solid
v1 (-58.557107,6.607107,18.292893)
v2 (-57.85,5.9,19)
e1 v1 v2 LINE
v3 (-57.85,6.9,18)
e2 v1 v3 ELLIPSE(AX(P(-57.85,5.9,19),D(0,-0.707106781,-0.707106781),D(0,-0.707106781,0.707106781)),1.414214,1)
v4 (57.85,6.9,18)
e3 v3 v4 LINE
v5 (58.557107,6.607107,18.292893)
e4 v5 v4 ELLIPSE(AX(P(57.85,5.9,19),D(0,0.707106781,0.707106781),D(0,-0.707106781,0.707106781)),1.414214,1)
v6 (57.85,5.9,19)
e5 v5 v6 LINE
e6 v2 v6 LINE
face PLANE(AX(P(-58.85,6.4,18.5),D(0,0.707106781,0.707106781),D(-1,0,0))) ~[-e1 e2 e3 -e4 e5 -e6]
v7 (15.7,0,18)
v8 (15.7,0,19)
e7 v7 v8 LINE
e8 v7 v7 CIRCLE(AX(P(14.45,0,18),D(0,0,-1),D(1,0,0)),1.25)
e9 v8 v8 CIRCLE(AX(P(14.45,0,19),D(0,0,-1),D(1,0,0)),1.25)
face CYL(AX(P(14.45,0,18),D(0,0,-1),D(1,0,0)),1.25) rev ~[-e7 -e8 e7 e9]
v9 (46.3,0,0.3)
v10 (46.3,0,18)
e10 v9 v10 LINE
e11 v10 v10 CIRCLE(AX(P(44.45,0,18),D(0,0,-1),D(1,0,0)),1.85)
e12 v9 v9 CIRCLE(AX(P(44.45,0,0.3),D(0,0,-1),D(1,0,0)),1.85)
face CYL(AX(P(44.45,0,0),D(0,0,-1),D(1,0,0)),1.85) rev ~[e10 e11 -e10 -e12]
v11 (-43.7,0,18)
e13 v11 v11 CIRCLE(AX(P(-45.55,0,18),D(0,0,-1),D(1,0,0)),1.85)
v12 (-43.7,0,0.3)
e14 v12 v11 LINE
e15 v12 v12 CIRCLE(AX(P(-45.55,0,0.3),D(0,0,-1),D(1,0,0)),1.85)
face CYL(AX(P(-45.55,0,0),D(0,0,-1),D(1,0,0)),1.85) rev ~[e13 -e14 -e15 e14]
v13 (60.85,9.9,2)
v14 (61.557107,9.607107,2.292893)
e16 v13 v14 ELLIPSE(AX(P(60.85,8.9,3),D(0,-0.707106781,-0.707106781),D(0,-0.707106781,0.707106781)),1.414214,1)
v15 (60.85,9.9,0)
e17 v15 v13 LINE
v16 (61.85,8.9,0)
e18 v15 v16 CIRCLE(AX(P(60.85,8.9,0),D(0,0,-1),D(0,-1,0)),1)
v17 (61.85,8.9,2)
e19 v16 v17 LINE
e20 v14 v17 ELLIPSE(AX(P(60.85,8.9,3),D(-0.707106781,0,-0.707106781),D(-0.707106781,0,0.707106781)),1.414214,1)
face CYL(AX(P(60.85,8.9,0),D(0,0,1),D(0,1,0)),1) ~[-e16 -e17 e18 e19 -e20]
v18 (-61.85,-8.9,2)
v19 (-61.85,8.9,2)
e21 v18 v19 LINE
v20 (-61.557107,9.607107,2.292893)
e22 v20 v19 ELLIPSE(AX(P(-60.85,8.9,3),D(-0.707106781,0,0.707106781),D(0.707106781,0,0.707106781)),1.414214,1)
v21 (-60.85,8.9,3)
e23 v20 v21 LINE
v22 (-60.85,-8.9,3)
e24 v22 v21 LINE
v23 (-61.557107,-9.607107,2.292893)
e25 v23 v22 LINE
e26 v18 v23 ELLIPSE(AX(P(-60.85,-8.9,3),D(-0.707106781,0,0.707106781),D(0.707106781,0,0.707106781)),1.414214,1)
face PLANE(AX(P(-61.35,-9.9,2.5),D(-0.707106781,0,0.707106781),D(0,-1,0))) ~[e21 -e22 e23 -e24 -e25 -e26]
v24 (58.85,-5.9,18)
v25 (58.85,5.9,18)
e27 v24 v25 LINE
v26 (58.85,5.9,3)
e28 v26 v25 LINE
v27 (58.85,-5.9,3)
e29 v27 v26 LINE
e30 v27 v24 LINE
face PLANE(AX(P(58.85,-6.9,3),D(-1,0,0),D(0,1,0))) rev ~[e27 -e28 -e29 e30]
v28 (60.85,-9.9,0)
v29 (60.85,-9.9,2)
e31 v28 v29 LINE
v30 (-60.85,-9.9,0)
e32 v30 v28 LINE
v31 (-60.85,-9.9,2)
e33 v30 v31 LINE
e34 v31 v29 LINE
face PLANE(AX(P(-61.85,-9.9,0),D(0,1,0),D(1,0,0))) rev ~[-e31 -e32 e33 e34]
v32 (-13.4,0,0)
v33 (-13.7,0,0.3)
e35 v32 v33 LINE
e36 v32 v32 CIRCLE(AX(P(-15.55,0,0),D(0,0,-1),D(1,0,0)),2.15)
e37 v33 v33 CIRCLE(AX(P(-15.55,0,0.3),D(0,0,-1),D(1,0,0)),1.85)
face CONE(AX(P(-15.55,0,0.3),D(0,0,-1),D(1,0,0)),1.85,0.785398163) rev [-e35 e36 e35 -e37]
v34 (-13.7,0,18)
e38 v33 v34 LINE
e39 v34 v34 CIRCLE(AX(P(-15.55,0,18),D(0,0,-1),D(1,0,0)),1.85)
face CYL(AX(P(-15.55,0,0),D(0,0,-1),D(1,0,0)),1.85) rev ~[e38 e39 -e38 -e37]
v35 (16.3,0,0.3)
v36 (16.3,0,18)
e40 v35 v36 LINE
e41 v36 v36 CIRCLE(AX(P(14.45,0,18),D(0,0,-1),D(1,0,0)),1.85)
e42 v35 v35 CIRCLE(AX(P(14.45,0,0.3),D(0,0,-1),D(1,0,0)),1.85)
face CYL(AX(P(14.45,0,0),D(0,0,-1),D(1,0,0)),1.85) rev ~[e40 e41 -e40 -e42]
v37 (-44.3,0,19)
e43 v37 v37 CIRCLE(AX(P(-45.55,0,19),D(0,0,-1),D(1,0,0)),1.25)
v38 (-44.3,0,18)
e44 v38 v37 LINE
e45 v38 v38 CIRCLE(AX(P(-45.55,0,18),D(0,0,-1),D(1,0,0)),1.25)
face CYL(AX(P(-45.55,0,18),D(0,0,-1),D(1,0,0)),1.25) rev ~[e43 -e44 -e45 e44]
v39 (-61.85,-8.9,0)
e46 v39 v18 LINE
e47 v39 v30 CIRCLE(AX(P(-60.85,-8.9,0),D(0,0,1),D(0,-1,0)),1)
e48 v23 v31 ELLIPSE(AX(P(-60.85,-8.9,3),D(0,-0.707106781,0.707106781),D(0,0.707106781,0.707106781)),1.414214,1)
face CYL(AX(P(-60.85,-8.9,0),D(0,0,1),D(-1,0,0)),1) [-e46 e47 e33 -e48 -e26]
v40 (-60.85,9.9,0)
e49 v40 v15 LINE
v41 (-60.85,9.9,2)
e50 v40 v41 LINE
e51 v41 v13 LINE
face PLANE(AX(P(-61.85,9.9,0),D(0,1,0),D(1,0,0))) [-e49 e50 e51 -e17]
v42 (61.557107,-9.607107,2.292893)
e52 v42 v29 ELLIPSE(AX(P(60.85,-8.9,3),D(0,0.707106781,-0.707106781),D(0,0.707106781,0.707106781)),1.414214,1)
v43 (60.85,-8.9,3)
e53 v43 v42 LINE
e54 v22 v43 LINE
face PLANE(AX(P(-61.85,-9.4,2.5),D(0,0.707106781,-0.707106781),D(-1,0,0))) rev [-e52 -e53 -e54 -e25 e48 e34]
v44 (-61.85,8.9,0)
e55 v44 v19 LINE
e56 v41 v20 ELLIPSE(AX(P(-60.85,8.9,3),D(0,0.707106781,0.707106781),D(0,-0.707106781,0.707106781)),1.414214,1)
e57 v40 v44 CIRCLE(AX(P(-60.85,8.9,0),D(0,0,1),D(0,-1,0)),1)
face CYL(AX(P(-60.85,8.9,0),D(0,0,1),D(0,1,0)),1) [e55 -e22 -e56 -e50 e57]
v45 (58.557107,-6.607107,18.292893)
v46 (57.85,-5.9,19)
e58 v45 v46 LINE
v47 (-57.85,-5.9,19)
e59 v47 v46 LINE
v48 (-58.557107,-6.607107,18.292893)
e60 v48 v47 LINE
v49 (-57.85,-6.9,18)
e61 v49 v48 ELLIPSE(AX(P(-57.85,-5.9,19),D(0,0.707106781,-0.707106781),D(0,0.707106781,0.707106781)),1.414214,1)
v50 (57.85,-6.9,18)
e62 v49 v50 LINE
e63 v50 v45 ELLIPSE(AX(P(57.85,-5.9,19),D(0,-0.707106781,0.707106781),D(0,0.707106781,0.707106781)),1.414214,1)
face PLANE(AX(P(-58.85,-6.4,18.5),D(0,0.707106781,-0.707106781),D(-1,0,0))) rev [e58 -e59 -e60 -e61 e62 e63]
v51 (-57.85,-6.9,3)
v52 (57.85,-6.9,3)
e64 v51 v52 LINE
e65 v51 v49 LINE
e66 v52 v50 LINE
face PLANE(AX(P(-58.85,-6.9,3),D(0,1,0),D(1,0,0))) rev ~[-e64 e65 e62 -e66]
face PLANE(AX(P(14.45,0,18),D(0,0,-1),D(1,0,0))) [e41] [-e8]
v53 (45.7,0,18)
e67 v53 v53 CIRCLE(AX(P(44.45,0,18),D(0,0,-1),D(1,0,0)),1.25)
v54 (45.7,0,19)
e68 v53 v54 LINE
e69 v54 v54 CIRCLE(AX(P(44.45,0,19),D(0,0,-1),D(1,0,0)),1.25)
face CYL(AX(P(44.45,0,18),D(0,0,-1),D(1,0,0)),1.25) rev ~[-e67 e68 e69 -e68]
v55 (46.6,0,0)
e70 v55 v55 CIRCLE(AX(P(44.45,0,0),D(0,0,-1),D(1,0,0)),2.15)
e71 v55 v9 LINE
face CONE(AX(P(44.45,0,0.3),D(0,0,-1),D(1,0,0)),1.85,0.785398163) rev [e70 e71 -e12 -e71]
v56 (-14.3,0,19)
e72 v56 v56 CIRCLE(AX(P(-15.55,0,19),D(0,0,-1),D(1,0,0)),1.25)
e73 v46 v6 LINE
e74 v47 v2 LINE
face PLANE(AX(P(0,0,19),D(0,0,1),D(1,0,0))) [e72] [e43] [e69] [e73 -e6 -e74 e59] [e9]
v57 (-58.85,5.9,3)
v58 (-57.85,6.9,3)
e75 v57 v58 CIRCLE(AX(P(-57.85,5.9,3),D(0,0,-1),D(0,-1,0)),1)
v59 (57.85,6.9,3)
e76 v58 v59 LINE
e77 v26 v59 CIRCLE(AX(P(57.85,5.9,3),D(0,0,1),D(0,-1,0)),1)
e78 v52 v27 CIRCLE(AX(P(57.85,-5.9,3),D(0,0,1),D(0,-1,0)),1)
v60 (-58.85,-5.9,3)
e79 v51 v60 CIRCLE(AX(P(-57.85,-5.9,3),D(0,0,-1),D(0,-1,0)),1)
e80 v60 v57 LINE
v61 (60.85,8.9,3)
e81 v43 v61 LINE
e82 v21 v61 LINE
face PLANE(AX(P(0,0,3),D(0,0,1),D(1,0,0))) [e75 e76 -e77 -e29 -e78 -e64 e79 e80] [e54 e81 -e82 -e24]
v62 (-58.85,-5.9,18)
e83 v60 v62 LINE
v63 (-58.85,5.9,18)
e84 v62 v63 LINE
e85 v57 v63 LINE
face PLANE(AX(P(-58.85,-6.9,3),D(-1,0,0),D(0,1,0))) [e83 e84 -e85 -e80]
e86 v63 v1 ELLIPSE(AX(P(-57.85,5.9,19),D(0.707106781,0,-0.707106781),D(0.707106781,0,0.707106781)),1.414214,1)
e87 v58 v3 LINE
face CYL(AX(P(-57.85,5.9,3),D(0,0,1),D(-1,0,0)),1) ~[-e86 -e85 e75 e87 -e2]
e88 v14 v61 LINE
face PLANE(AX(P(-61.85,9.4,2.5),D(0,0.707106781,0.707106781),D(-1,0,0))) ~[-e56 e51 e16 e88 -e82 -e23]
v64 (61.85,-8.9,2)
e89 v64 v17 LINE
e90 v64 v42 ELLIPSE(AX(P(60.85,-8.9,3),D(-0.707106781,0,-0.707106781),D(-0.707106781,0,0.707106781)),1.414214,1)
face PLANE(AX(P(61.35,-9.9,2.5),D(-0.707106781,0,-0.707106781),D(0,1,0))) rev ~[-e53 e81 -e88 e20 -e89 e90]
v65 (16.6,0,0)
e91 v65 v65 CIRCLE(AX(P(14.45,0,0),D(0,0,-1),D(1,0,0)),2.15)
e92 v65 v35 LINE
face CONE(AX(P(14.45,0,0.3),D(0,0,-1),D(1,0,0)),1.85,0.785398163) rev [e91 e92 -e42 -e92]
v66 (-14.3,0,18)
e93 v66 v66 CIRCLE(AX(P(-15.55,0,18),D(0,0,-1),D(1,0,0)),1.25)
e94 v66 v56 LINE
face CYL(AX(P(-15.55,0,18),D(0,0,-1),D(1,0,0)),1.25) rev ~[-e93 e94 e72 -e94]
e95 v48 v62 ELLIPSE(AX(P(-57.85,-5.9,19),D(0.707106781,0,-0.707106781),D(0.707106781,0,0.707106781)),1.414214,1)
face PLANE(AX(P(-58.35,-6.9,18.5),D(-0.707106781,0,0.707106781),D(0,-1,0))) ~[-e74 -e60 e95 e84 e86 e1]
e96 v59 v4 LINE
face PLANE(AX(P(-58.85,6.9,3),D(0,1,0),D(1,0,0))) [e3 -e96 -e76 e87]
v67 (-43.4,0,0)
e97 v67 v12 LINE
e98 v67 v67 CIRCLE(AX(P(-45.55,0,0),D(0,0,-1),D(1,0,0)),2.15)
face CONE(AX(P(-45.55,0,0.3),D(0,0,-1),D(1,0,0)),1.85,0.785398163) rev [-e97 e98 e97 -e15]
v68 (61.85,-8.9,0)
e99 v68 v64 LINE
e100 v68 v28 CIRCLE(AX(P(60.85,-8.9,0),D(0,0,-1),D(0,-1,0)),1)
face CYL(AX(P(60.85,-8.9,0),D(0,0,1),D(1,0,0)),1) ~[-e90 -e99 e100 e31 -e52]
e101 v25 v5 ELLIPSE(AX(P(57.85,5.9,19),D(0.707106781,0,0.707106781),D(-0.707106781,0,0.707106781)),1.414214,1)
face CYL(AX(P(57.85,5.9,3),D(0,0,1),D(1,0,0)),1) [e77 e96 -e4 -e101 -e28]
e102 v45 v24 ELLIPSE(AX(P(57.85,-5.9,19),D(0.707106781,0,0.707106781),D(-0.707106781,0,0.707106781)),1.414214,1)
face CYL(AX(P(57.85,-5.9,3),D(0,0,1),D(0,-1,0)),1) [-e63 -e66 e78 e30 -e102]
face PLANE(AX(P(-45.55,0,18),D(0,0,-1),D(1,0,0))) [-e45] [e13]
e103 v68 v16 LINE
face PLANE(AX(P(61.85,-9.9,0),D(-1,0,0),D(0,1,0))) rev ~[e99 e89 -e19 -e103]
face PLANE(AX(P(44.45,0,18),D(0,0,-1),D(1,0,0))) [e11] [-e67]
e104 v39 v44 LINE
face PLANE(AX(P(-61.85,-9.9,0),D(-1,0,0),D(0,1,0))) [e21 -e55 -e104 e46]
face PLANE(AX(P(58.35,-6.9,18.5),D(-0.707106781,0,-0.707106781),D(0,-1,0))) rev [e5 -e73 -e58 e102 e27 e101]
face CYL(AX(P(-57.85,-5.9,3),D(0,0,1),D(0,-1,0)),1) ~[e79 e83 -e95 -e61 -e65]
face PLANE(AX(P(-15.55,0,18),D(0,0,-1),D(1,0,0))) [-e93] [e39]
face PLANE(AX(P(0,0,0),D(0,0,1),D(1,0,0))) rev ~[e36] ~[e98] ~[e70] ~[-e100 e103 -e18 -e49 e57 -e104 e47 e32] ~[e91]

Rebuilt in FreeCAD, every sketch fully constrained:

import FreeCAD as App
import Part
import Sketcher

V = App.Vector


def edges_at(feature, points):
    """Names of the edges that pass closest to the given points."""
    edges = feature.Shape.Edges
    near = lambda p: min(range(len(edges)), key=lambda i: edges[i].distToShape(Part.Vertex(*p))[0])
    return sorted({f"Edge{near(p) + 1}" for p in points})


def add_polygon(sketch, points):
    """Adds a closed chain of lines whose ends are joined by coincident constraints."""
    first, n = sketch.GeometryCount, len(points)
    for a, b in zip(points, points[1:] + points[:1]):
        sketch.addGeometry(Part.LineSegment(App.Vector(*a, 0), App.Vector(*b, 0)), False)
    for i in range(n):
        sketch.addConstraint(Sketcher.Constraint("Coincident", first + i, 2, first + (i + 1) % n, 1))

doc = App.newDocument("Part")
body = doc.addObject("PartDesign::Body", "Body")

# Sketch on XY plane
sketch1 = body.newObject("Sketcher::SketchObject", "Sketch")
sketch1.AttachmentSupport = (doc.getObject("XY_Plane"), [""])
sketch1.MapMode = "FlatFace"
add_polygon(sketch1, [(-62, 10), (-62, -10), (62, -10), (62, 10)])  # lines 0-3
sketch1.addConstraint([
    Sketcher.Constraint("Vertical", 0),
    Sketcher.Constraint("Horizontal", 1),
    Sketcher.Constraint("Vertical", 2),
    Sketcher.Constraint("Horizontal", 3),
    Sketcher.Constraint("Symmetric", 0, 2, 2, 2, -1, 1),
    Sketcher.Constraint("DistanceX", 1, 1, 1, 2, 123.7),
    Sketcher.Constraint("DistanceY", 0, 2, 0, 1, 19.8),
])
pad1 = body.newObject("PartDesign::Pad", "Pad")
pad1.Profile = sketch1
pad1.Length = 3

# Sketch on XY plane
sketch2 = body.newObject("Sketcher::SketchObject", "Sketch001")
sketch2.AttachmentSupport = (doc.getObject("XY_Plane"), [""])
sketch2.MapMode = "FlatFace"
sketch2.AttachmentOffset = App.Placement(V(0, 0, 3), App.Rotation())
add_polygon(sketch2, [(-59, 7), (-59, -7), (59, -7), (59, 7)])  # lines 0-3
sketch2.addConstraint([
    Sketcher.Constraint("Vertical", 0),
    Sketcher.Constraint("Horizontal", 1),
    Sketcher.Constraint("Vertical", 2),
    Sketcher.Constraint("Horizontal", 3),
    Sketcher.Constraint("Symmetric", 0, 2, 2, 2, -1, 1),
    Sketcher.Constraint("DistanceX", 1, 1, 1, 2, 117.7),
    Sketcher.Constraint("DistanceY", 0, 2, 0, 1, 13.8),
])
pad2 = body.newObject("PartDesign::Pad", "Pad001")
pad2.Profile = sketch2
pad2.Length = 16

# Sketch on XY plane
sketch3 = body.newObject("Sketcher::SketchObject", "Sketch002")
sketch3.AttachmentSupport = (doc.getObject("XY_Plane"), [""])
sketch3.MapMode = "FlatFace"
sketch3.addGeometry([
    Part.Circle(V(-45.5, 0, 0), V(0, 0, 1), 1.9),
    Part.Circle(V(-15.6, 0, 0), V(0, 0, 1), 1.9),
    Part.Circle(V(14.4, 0, 0), V(0, 0, 1), 1.9),
    Part.Circle(V(44.5, 0, 0), V(0, 0, 1), 1.9),
], False)
sketch3.addConstraint([
    Sketcher.Constraint("Equal", 0, 1),
    Sketcher.Constraint("Equal", 1, 2),
    Sketcher.Constraint("Equal", 2, 3),
    Sketcher.Constraint("PointOnObject", 0, 3, -1),
    Sketcher.Constraint("PointOnObject", 1, 3, -1),
    Sketcher.Constraint("PointOnObject", 2, 3, -1),
    Sketcher.Constraint("PointOnObject", 3, 3, -1),
    Sketcher.Constraint("Diameter", 0, 3.7),
    Sketcher.Constraint("DistanceX", 0, 3, 1, 3, 30.0),
    Sketcher.Constraint("DistanceX", 1, 3, 2, 3, 30.0),
    Sketcher.Constraint("DistanceX", 2, 3, 3, 3, 30.0),
    Sketcher.Constraint("DistanceX", 0, 3, -1, 1, 45.55),
])
pocket1 = body.newObject("PartDesign::Pocket", "Pocket")
pocket1.Profile = sketch3
pocket1.Length = 18
pocket1.Reversed = True
doc.recompute()

chamfer = body.newObject("PartDesign::Chamfer", "Chamfer")
chamfer.Base = (pocket1, edges_at(pocket1, [
    (0, 9.9, 3),
    (-61.85, 0, 3),
    (61.85, 0, 3),
    (0, -9.9, 3),
]))
chamfer.Size = 1

# Sketch on XY plane
sketch4 = body.newObject("Sketcher::SketchObject", "Sketch003")
sketch4.AttachmentSupport = (doc.getObject("XY_Plane"), [""])
sketch4.MapMode = "FlatFace"
sketch4.AttachmentOffset = App.Placement(V(0, 0, 18), App.Rotation())
sketch4.addGeometry([
    Part.Circle(V(-45.5, 0, 0), V(0, 0, 1), 1.2),
    Part.Circle(V(-15.6, 0, 0), V(0, 0, 1), 1.2),
    Part.Circle(V(14.4, 0, 0), V(0, 0, 1), 1.2),
    Part.Circle(V(44.5, 0, 0), V(0, 0, 1), 1.2),
], False)
sketch4.addConstraint([
    Sketcher.Constraint("Equal", 0, 1),
    Sketcher.Constraint("Equal", 1, 2),
    Sketcher.Constraint("Equal", 2, 3),
    Sketcher.Constraint("PointOnObject", 0, 3, -1),
    Sketcher.Constraint("PointOnObject", 1, 3, -1),
    Sketcher.Constraint("PointOnObject", 2, 3, -1),
    Sketcher.Constraint("PointOnObject", 3, 3, -1),
    Sketcher.Constraint("Diameter", 0, 2.5),
    Sketcher.Constraint("DistanceX", 0, 3, 1, 3, 30.0),
    Sketcher.Constraint("DistanceX", 1, 3, 2, 3, 30.0),
    Sketcher.Constraint("DistanceX", 2, 3, 3, 3, 30.0),
    Sketcher.Constraint("DistanceX", 0, 3, -1, 1, 45.55),
])
pocket2 = body.newObject("PartDesign::Pocket", "Pocket001")
pocket2.Profile = sketch4
pocket2.Length = 5
pocket2.Reversed = True
doc.recompute()

chamfer2 = body.newObject("PartDesign::Chamfer", "Chamfer001")
chamfer2.Base = (pocket2, edges_at(pocket2, [
    (0, -6.9, 19),
    (0, 6.9, 19),
    (-58.85, 0, 19),
    (58.85, 0, 19),
]))
chamfer2.Size = 1
doc.recompute()

fillet = body.newObject("PartDesign::Fillet", "Fillet")
fillet.Base = (chamfer2, edges_at(chamfer2, [
    (58.85, -6.9, 10.5),
    (58.85, 6.9, 10.5),
    (61.85, 9.9, 1),
    (61.85, -9.9, 1),
    (-58.85, -6.9, 10.5),
    (-58.85, 6.9, 10.5),
    (-61.85, 9.9, 1),
    (-61.85, -9.9, 1),
]))
fillet.Radius = 1
doc.recompute()

chamfer3 = body.newObject("PartDesign::Chamfer", "Chamfer002")
chamfer3.Base = (fillet, edges_at(fillet, [
    (-47.4, 0, 0),
    (-17.4, 0, 0),
    (12.6, 0, 0),
    (42.6, 0, 0),
]))
chamfer3.Size = 0.3

doc.recompute()
